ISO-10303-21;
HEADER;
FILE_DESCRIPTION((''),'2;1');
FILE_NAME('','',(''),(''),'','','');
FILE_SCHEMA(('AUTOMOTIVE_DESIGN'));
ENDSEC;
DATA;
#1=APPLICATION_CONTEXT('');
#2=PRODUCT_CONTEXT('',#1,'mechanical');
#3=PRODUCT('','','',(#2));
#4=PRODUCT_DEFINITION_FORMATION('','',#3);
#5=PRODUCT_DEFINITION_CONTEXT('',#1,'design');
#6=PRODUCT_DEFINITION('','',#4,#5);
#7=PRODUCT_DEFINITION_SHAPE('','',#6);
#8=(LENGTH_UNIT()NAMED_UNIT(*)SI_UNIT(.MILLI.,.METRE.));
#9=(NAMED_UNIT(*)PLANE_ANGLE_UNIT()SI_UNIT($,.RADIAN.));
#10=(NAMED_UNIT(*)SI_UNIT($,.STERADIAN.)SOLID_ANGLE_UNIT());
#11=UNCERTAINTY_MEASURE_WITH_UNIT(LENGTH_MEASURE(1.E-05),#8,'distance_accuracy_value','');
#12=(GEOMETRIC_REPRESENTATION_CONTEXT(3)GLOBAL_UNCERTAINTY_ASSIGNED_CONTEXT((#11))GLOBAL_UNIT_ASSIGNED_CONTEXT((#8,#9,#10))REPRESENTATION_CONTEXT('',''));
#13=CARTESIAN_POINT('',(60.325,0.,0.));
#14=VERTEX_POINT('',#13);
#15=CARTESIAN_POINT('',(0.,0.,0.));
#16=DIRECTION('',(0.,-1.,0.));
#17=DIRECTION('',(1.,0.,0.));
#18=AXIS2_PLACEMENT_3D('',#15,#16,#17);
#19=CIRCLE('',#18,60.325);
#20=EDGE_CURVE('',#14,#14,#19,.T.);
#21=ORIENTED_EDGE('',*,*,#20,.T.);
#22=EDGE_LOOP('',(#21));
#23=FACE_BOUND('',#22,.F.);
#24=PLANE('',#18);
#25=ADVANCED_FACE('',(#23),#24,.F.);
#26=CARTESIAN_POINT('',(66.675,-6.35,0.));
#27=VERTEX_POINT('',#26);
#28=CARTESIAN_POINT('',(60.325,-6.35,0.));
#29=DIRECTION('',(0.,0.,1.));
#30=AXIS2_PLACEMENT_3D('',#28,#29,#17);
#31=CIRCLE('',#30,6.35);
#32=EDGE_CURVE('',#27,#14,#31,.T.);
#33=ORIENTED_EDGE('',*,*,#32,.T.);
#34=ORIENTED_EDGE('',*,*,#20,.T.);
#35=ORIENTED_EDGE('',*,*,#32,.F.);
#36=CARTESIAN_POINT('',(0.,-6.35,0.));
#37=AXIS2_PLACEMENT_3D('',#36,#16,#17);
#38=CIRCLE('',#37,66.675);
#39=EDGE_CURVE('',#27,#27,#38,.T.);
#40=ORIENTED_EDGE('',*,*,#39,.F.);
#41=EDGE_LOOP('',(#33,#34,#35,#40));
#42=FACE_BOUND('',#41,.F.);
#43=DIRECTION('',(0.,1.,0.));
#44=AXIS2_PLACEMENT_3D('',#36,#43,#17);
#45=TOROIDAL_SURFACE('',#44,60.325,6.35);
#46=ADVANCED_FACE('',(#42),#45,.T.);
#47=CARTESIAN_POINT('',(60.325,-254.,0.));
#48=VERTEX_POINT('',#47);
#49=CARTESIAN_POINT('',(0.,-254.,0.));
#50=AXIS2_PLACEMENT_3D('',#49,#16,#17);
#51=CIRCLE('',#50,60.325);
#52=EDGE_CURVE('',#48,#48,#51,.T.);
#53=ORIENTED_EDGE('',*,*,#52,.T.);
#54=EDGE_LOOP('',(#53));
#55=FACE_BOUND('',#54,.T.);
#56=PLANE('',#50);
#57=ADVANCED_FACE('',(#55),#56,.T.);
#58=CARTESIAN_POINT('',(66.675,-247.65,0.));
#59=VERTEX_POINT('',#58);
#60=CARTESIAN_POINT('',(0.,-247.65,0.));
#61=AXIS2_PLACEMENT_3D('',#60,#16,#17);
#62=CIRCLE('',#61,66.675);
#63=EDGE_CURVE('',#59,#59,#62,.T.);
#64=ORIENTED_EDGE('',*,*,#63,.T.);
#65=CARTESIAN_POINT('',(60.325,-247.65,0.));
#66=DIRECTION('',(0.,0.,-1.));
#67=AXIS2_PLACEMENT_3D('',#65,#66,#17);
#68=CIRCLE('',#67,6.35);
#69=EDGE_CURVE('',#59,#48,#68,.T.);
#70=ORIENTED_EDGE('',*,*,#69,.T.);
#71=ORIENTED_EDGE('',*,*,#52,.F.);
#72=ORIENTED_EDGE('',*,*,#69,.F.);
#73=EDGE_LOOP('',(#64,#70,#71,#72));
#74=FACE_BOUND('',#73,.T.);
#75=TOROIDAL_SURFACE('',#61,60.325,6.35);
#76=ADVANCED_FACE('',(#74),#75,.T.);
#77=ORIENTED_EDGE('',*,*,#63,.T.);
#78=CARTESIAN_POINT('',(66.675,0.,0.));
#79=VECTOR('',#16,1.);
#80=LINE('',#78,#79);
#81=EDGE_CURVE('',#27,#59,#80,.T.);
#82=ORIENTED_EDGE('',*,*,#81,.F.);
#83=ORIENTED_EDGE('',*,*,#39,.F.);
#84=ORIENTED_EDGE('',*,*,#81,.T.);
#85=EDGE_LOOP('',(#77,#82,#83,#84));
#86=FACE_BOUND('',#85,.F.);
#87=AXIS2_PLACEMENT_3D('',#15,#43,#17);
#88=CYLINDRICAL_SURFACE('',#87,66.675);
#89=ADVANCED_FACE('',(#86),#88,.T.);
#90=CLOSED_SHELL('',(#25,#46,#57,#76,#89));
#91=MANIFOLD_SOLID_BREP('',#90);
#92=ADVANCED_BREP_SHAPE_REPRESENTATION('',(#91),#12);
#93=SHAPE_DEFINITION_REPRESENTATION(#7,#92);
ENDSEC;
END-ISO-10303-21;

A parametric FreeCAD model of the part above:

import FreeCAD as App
import Part
import Sketcher

V = App.Vector
Q = App.Units.Quantity

doc = App.newDocument("Part")
params = doc.addObject("Spreadsheet::Sheet", "Params")
for row, (alias, value) in enumerate([
    ("sketch1_diameter", "5.25 in"),
    ("pad1_length", "10 in"),
    ("fillet_radius", "0.25 in"),
], start=1):
    params.set(f"A{row}", alias)
    params.set(f"B{row}", "=" + value)
    params.setAlias(f"B{row}", alias)

body = doc.addObject("PartDesign::Body", "Body")

# Sketch on XZ plane
sketch1 = body.newObject("Sketcher::SketchObject", "Sketch")
sketch1.AttachmentSupport = (doc.getObject("XZ_Plane"), [""])
sketch1.MapMode = "FlatFace"
sketch1.addGeometry(Part.Circle(V(0, 0, 0), V(0, 0, 1), 67), False)
sketch1.addConstraint([
    Sketcher.Constraint("Coincident", 0, 3, -1, 1),
    Sketcher.Constraint("Diameter", 0, Q("5.25 in")),
])
sketch1.setExpression("Constraints[1]", "Params.sketch1_diameter")
pad1 = body.newObject("PartDesign::Pad", "Pad")
pad1.Profile = sketch1
pad1.setExpression("Length", "Params.pad1_length")
doc.recompute()

fillet = body.newObject("PartDesign::Fillet", "Fillet")
fillet.Base = (pad1, ["Edge1"])
fillet.UseAllEdges = True
fillet.setExpression("Radius", "Params.fillet_radius")

doc.recompute()
